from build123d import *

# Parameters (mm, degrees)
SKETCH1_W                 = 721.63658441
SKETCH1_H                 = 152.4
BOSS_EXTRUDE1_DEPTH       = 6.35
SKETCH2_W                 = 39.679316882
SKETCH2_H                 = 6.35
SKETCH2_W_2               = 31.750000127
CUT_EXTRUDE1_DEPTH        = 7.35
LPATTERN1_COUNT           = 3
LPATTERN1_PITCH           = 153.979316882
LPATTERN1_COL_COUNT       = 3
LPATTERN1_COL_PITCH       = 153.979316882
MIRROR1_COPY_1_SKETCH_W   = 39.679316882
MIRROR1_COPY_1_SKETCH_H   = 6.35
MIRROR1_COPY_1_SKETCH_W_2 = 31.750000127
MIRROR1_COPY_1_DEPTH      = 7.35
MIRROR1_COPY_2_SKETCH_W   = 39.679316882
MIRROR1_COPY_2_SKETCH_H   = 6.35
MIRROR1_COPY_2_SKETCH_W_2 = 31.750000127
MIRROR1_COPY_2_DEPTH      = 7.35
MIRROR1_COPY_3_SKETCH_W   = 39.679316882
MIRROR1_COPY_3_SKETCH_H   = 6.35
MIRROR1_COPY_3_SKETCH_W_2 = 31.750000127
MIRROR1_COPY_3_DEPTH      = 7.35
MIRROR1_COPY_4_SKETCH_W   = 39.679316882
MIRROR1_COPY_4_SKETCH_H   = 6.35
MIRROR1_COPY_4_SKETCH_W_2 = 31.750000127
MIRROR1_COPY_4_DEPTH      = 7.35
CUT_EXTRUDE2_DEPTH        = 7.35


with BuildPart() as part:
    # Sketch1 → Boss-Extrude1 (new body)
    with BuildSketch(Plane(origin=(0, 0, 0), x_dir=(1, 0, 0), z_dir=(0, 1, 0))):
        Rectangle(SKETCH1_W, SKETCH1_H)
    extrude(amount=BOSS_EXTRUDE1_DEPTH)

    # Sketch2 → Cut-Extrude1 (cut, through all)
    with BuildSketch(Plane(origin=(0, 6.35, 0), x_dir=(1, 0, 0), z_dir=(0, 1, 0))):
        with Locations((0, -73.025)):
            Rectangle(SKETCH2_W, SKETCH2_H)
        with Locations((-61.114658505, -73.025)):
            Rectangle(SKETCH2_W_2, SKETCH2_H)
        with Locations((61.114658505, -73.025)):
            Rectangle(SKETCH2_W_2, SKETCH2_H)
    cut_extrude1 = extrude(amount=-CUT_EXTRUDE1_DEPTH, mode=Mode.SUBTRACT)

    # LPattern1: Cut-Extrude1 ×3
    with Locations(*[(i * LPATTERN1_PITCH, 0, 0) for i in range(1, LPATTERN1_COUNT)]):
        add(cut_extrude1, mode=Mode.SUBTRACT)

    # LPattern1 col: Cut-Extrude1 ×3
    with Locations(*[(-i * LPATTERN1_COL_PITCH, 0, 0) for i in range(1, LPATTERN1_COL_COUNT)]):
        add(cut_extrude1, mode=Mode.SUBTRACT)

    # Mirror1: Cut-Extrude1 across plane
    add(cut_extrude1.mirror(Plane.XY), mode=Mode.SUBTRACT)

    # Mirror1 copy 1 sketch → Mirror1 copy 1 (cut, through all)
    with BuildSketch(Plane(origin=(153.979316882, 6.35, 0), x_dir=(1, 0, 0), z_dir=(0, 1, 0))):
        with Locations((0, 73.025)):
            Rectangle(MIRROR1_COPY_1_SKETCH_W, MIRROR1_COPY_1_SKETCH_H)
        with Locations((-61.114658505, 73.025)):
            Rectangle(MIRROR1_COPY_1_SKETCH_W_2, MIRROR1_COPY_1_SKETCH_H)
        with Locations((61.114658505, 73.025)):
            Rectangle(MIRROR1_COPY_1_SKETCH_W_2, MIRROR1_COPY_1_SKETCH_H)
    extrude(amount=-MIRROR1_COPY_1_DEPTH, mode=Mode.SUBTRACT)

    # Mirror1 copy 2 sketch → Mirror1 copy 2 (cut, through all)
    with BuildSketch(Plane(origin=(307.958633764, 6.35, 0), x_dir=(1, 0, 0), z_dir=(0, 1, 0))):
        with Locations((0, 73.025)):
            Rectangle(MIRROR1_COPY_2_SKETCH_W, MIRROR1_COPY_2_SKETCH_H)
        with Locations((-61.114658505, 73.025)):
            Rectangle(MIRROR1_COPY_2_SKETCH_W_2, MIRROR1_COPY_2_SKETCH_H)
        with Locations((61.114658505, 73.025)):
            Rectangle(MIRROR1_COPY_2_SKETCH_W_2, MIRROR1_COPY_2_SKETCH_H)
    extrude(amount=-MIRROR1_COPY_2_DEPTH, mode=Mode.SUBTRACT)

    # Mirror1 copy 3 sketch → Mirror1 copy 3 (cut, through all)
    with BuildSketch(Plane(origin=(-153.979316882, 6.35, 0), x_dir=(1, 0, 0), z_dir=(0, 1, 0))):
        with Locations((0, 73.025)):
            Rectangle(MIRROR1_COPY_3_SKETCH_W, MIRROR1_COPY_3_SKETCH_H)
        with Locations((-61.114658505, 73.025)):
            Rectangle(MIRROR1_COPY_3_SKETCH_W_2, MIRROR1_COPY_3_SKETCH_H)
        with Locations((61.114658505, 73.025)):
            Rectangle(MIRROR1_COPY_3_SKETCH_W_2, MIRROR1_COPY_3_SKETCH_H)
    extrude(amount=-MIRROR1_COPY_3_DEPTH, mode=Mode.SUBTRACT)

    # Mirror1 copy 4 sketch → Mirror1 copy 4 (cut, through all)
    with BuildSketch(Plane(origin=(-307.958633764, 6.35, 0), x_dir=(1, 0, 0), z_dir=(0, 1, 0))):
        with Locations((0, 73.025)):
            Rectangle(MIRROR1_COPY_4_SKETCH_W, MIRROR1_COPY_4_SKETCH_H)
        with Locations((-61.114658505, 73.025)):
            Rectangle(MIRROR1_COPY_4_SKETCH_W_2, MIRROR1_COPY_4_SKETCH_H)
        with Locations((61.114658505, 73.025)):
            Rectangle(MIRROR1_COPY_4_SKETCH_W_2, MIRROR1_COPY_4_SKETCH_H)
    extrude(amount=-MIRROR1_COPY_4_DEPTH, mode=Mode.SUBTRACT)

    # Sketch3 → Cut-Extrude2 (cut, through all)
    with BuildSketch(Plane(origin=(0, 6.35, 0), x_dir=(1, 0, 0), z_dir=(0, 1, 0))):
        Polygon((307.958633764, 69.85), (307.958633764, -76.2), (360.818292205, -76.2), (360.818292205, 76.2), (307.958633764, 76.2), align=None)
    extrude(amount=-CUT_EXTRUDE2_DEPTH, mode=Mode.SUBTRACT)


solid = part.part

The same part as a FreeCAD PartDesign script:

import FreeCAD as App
import Part
import Sketcher

V = App.Vector
Q = App.Units.Quantity

doc = App.newDocument("Part")
params = doc.addObject("Spreadsheet::Sheet", "Params")
for row, (alias, value) in enumerate([
    ("sketch1_height", "6 in"),
    ("pad1_length", "0.25 in"),
    ("sketch2_width", "1.25 in"),
    ("sketch2_height", "0.25 in"),
    ("linearpattern_pitch", "153.979317 mm"),
    ("linearpattern2_pitch", "153.979317 mm"),
    ("sketch3_width", "1.25 in"),
    ("sketch3_height", "0.25 in"),
    ("sketch4_width", "1.25 in"),
    ("sketch4_height", "0.25 in"),
    ("sketch5_width", "1.25 in"),
    ("sketch5_height", "0.25 in"),
    ("sketch6_width", "1.25 in"),
    ("sketch6_height", "0.25 in"),
    ("sketch7_height", "6 in"),
], start=1):
    params.set(f"A{row}", alias)
    params.set(f"B{row}", "=" + value)
    params.setAlias(f"B{row}", alias)

body = doc.addObject("PartDesign::Body", "Body")

# Sketch on XZ plane
sketch1 = body.newObject("Sketcher::SketchObject", "Sketch")
sketch1.AttachmentSupport = (doc.getObject("XZ_Plane"), [""])
sketch1.MapMode = "FlatFace"
sketch1.addGeometry([
    Part.LineSegment(V(-360.818292, -76.2, 0), V(-360.818292, 76.2, 0)),
    Part.LineSegment(V(-360.818292, 76.2, 0), V(360.818292, 76.2, 0)),
    Part.LineSegment(V(360.818292, 76.2, 0), V(360.818292, -76.2, 0)),
    Part.LineSegment(V(360.818292, -76.2, 0), V(-360.818292, -76.2, 0)),
], False)
sketch1.addConstraint([
    Sketcher.Constraint("Coincident", 0, 2, 1, 1),
    Sketcher.Constraint("Coincident", 1, 2, 2, 1),
    Sketcher.Constraint("Coincident", 2, 2, 3, 1),
    Sketcher.Constraint("Coincident", 3, 2, 0, 1),
    Sketcher.Constraint("Vertical", 0),
    Sketcher.Constraint("Horizontal", 1),
    Sketcher.Constraint("Vertical", 2),
    Sketcher.Constraint("Horizontal", 3),
    Sketcher.Constraint("Symmetric", 0, 2, 2, 2, -1, 1),
    Sketcher.Constraint("DistanceY", 0, 1, 0, 2, Q("6 in")),
    Sketcher.Constraint("DistanceX", 1, 1, 1, 2, Q("721.636584 mm")),
])
sketch1.setExpression("Constraints[9]", "Params.sketch1_height")
pad1 = body.newObject("PartDesign::Pad", "Pad")
pad1.Profile = sketch1
pad1.setExpression("Length", "Params.pad1_length")
pad1.Reversed = True

# Sketch on XZ plane
sketch2 = body.newObject("Sketcher::SketchObject", "Sketch001")
sketch2.AttachmentSupport = (doc.getObject("XZ_Plane"), [""])
sketch2.MapMode = "FlatFace"
sketch2.AttachmentOffset = App.Placement(V(0, 0, -0.25 * 25.4), App.Rotation())
sketch2.addGeometry([
    Part.LineSegment(V(-19.839658, 69.85, 0), V(-19.839658, 76.2, 0)),  # 0
    Part.LineSegment(V(-19.839658, 76.2, 0), V(19.839658, 76.2, 0)),  # 1
    Part.LineSegment(V(19.839658, 76.2, 0), V(19.839658, 69.85, 0)),  # 2
    Part.LineSegment(V(19.839658, 69.85, 0), V(-19.839658, 69.85, 0)),  # 3
    Part.LineSegment(V(-76.989659, 69.85, 0), V(-76.989659, 76.2, 0)),  # 4
    Part.LineSegment(V(-76.989659, 76.2, 0), V(-45.239658, 76.2, 0)),  # 5
    Part.LineSegment(V(-45.239658, 76.2, 0), V(-45.239658, 69.85, 0)),  # 6
    Part.LineSegment(V(-45.239658, 69.85, 0), V(-76.989659, 69.85, 0)),  # 7
    Part.LineSegment(V(45.239658, 69.85, 0), V(45.239658, 76.2, 0)),  # 8
    Part.LineSegment(V(45.239658, 76.2, 0), V(76.989659, 76.2, 0)),  # 9
    Part.LineSegment(V(76.989659, 76.2, 0), V(76.989659, 69.85, 0)),  # 10
    Part.LineSegment(V(76.989659, 69.85, 0), V(45.239658, 69.85, 0)),  # 11
], False)
sketch2.addConstraint([
    Sketcher.Constraint("Coincident", 0, 2, 1, 1),
    Sketcher.Constraint("Coincident", 1, 2, 2, 1),
    Sketcher.Constraint("Coincident", 2, 2, 3, 1),
    Sketcher.Constraint("Coincident", 3, 2, 0, 1),
    Sketcher.Constraint("Coincident", 4, 2, 5, 1),
    Sketcher.Constraint("Coincident", 5, 2, 6, 1),
    Sketcher.Constraint("Coincident", 6, 2, 7, 1),
    Sketcher.Constraint("Coincident", 7, 2, 4, 1),
    Sketcher.Constraint("Coincident", 8, 2, 9, 1),
    Sketcher.Constraint("Coincident", 9, 2, 10, 1),
    Sketcher.Constraint("Coincident", 10, 2, 11, 1),
    Sketcher.Constraint("Coincident", 11, 2, 8, 1),
    Sketcher.Constraint("Vertical", 0),
    Sketcher.Constraint("Horizontal", 1),
    Sketcher.Constraint("Vertical", 2),
    Sketcher.Constraint("Horizontal", 3),
    Sketcher.Constraint("Vertical", 4),
    Sketcher.Constraint("Horizontal", 5),
    Sketcher.Constraint("Vertical", 6),
    Sketcher.Constraint("Horizontal", 7),
    Sketcher.Constraint("Vertical", 8),
    Sketcher.Constraint("Horizontal", 9),
    Sketcher.Constraint("Vertical", 10),
    Sketcher.Constraint("Horizontal", 11),
    Sketcher.Constraint("Symmetric", 5, 2, 8, 2, -2),
    Sketcher.Constraint("Symmetric", 7, 2, 10, 2, -2),
    Sketcher.Constraint("Horizontal", 1, 2, 4, 2),
    Sketcher.Constraint("Horizontal", 3, 2, 6, 2),
    Sketcher.Constraint("DistanceY", -1, 1, 0, 2, Q("3 in")),
    Sketcher.Constraint("DistanceX", 5, 2, 0, 2, Q("1 in")),
    Sketcher.Constraint("DistanceX", 1, 2, 8, 2, Q("1 in")),
    Sketcher.Constraint("DistanceX", 5, 1, 5, 2, Q("1.25 in")),
    Sketcher.Constraint("DistanceY", 0, 1, 0, 2, Q("0.25 in")),
    Sketcher.Constraint("DistanceX", 1, 1, 1, 2, Q("39.679317 mm")),
])
sketch2.setExpression("Constraints[31]", "Params.sketch2_width")
sketch2.setExpression("Constraints[32]", "Params.sketch2_height")
pocket1 = body.newObject("PartDesign::Pocket", "Pocket")
pocket1.Profile = sketch2
pocket1.Type = "ThroughAll"
pocket1.Reversed = True
doc.recompute()

linearpattern = body.newObject("PartDesign::LinearPattern", "LinearPattern")
linearpattern.Originals = [pocket1]
linearpattern.Direction = (doc.getObject("X_Axis"), [""])
linearpattern.Mode = "offset"
linearpattern.setExpression("Offset", "Params.linearpattern_pitch")
linearpattern.Occurrences = 3
body.Tip = linearpattern
doc.recompute()

linearpattern2 = body.newObject("PartDesign::LinearPattern", "LinearPattern001")
linearpattern2.Originals = [pocket1]
linearpattern2.Direction = (doc.getObject("X_Axis"), [""])
linearpattern2.Mode = "offset"
linearpattern2.setExpression("Offset", "Params.linearpattern2_pitch")
linearpattern2.Occurrences = 3
linearpattern2.Reversed = True
body.Tip = linearpattern2
doc.recompute()

mirrored = body.newObject("PartDesign::Mirrored", "Mirrored")
mirrored.Originals = [pocket1]
mirrored.MirrorPlane = (doc.getObject("XY_Plane"), [""])
body.Tip = mirrored

# Sketch on XZ plane
sketch3 = body.newObject("Sketcher::SketchObject", "Sketch002")
sketch3.AttachmentSupport = (doc.getObject("XZ_Plane"), [""])
sketch3.MapMode = "FlatFace"
sketch3.AttachmentOffset = App.Placement(V(0, 0, -0.25 * 25.4), App.Rotation())
sketch3.addGeometry([
    Part.LineSegment(V(134.139658, -76.2, 0), V(134.139658, -69.85, 0)),  # 0
    Part.LineSegment(V(134.139658, -69.85, 0), V(173.818975, -69.85, 0)),  # 1
    Part.LineSegment(V(173.818975, -69.85, 0), V(173.818975, -76.2, 0)),  # 2
    Part.LineSegment(V(173.818975, -76.2, 0), V(134.139658, -76.2, 0)),  # 3
    Part.LineSegment(V(76.989658, -76.2, 0), V(76.989658, -69.85, 0)),  # 4
    Part.LineSegment(V(76.989658, -69.85, 0), V(108.739658, -69.85, 0)),  # 5
    Part.LineSegment(V(108.739658, -69.85, 0), V(108.739658, -76.2, 0)),  # 6
    Part.LineSegment(V(108.739658, -76.2, 0), V(76.989658, -76.2, 0)),  # 7
    Part.LineSegment(V(199.218975, -76.2, 0), V(199.218975, -69.85, 0)),  # 8
    Part.LineSegment(V(199.218975, -69.85, 0), V(230.968975, -69.85, 0)),  # 9
    Part.LineSegment(V(230.968975, -69.85, 0), V(230.968975, -76.2, 0)),  # 10
    Part.LineSegment(V(230.968975, -76.2, 0), V(199.218975, -76.2, 0)),  # 11
], False)
sketch3.addConstraint([
    Sketcher.Constraint("Coincident", 0, 2, 1, 1),
    Sketcher.Constraint("Coincident", 1, 2, 2, 1),
    Sketcher.Constraint("Coincident", 2, 2, 3, 1),
    Sketcher.Constraint("Coincident", 3, 2, 0, 1),
    Sketcher.Constraint("Coincident", 4, 2, 5, 1),
    Sketcher.Constraint("Coincident", 5, 2, 6, 1),
    Sketcher.Constraint("Coincident", 6, 2, 7, 1),
    Sketcher.Constraint("Coincident", 7, 2, 4, 1),
    Sketcher.Constraint("Coincident", 8, 2, 9, 1),
    Sketcher.Constraint("Coincident", 9, 2, 10, 1),
    Sketcher.Constraint("Coincident", 10, 2, 11, 1),
    Sketcher.Constraint("Coincident", 11, 2, 8, 1),
    Sketcher.Constraint("Vertical", 0),
    Sketcher.Constraint("Horizontal", 1),
    Sketcher.Constraint("Vertical", 2),
    Sketcher.Constraint("Horizontal", 3),
    Sketcher.Constraint("Vertical", 4),
    Sketcher.Constraint("Horizontal", 5),
    Sketcher.Constraint("Vertical", 6),
    Sketcher.Constraint("Horizontal", 7),
    Sketcher.Constraint("Vertical", 8),
    Sketcher.Constraint("Horizontal", 9),
    Sketcher.Constraint("Vertical", 10),
    Sketcher.Constraint("Horizontal", 11),
    Sketcher.Constraint("Horizontal", 1, 2, 4, 2),
    Sketcher.Constraint("Horizontal", 3, 2, 6, 2),
    Sketcher.Constraint("Horizontal", 5, 2, 8, 2),
    Sketcher.Constraint("Horizontal", 7, 2, 10, 2),
    Sketcher.Constraint("Equal", 7, 9),
    Sketcher.Constraint("DistanceY", 2, 2, -1, 1, Q("3 in")),
    Sketcher.Constraint("DistanceX", 5, 2, 0, 2, Q("1 in")),
    Sketcher.Constraint("DistanceX", 1, 2, 8, 2, Q("1 in")),
    Sketcher.Constraint("DistanceX", 5, 1, 5, 2, Q("1.25 in")),
    Sketcher.Constraint("DistanceY", 0, 1, 0, 2, Q("0.25 in")),
    Sketcher.Constraint("DistanceX", 1, 1, 1, 2, Q("39.679317 mm")),
    Sketcher.Constraint("DistanceX", -1, 1, 0, 2, Q("134.139658 mm")),
])
sketch3.setExpression("Constraints[32]", "Params.sketch3_width")
sketch3.setExpression("Constraints[33]", "Params.sketch3_height")
pocket2 = body.newObject("PartDesign::Pocket", "Pocket001")
pocket2.Profile = sketch3
pocket2.Type = "ThroughAll"
pocket2.Reversed = True

# Sketch on XZ plane
sketch4 = body.newObject("Sketcher::SketchObject", "Sketch003")
sketch4.AttachmentSupport = (doc.getObject("XZ_Plane"), [""])
sketch4.MapMode = "FlatFace"
sketch4.AttachmentOffset = App.Placement(V(0, 0, -0.25 * 25.4), App.Rotation())
sketch4.addGeometry([
    Part.LineSegment(V(288.118975, -76.2, 0), V(288.118975, -69.85, 0)),  # 0
    Part.LineSegment(V(288.118975, -69.85, 0), V(327.798292, -69.85, 0)),  # 1
    Part.LineSegment(V(327.798292, -69.85, 0), V(327.798292, -76.2, 0)),  # 2
    Part.LineSegment(V(327.798292, -76.2, 0), V(288.118975, -76.2, 0)),  # 3
    Part.LineSegment(V(230.968975, -76.2, 0), V(230.968975, -69.85, 0)),  # 4
    Part.LineSegment(V(230.968975, -69.85, 0), V(262.718975, -69.85, 0)),  # 5
    Part.LineSegment(V(262.718975, -69.85, 0), V(262.718975, -76.2, 0)),  # 6
    Part.LineSegment(V(262.718975, -76.2, 0), V(230.968975, -76.2, 0)),  # 7
    Part.LineSegment(V(353.198292, -76.2, 0), V(353.198292, -69.85, 0)),  # 8
    Part.LineSegment(V(353.198292, -69.85, 0), V(384.948292, -69.85, 0)),  # 9
    Part.LineSegment(V(384.948292, -69.85, 0), V(384.948292, -76.2, 0)),  # 10
    Part.LineSegment(V(384.948292, -76.2, 0), V(353.198292, -76.2, 0)),  # 11
], False)
sketch4.addConstraint([
    Sketcher.Constraint("Coincident", 0, 2, 1, 1),
    Sketcher.Constraint("Coincident", 1, 2, 2, 1),
    Sketcher.Constraint("Coincident", 2, 2, 3, 1),
    Sketcher.Constraint("Coincident", 3, 2, 0, 1),
    Sketcher.Constraint("Coincident", 4, 2, 5, 1),
    Sketcher.Constraint("Coincident", 5, 2, 6, 1),
    Sketcher.Constraint("Coincident", 6, 2, 7, 1),
    Sketcher.Constraint("Coincident", 7, 2, 4, 1),
    Sketcher.Constraint("Coincident", 8, 2, 9, 1),
    Sketcher.Constraint("Coincident", 9, 2, 10, 1),
    Sketcher.Constraint("Coincident", 10, 2, 11, 1),
    Sketcher.Constraint("Coincident", 11, 2, 8, 1),
    Sketcher.Constraint("Vertical", 0),
    Sketcher.Constraint("Horizontal", 1),
    Sketcher.Constraint("Vertical", 2),
    Sketcher.Constraint("Horizontal", 3),
    Sketcher.Constraint("Vertical", 4),
    Sketcher.Constraint("Horizontal", 5),
    Sketcher.Constraint("Vertical", 6),
    Sketcher.Constraint("Horizontal", 7),
    Sketcher.Constraint("Vertical", 8),
    Sketcher.Constraint("Horizontal", 9),
    Sketcher.Constraint("Vertical", 10),
    Sketcher.Constraint("Horizontal", 11),
    Sketcher.Constraint("Horizontal", 1, 2, 4, 2),
    Sketcher.Constraint("Horizontal", 3, 2, 6, 2),
    Sketcher.Constraint("Horizontal", 5, 2, 8, 2),
    Sketcher.Constraint("Horizontal", 7, 2, 10, 2),
    Sketcher.Constraint("Equal", 7, 9),
    Sketcher.Constraint("DistanceY", 2, 2, -1, 1, Q("3 in")),
    Sketcher.Constraint("DistanceX", 5, 2, 0, 2, Q("1 in")),
    Sketcher.Constraint("DistanceX", 1, 2, 8, 2, Q("1 in")),
    Sketcher.Constraint("DistanceX", 5, 1, 5, 2, Q("1.25 in")),
    Sketcher.Constraint("DistanceY", 0, 1, 0, 2, Q("0.25 in")),
    Sketcher.Constraint("DistanceX", 1, 1, 1, 2, Q("39.679317 mm")),
    Sketcher.Constraint("DistanceX", -1, 1, 0, 2, Q("288.118975 mm")),
])
sketch4.setExpression("Constraints[32]", "Params.sketch4_width")
sketch4.setExpression("Constraints[33]", "Params.sketch4_height")
pocket3 = body.newObject("PartDesign::Pocket", "Pocket002")
pocket3.Profile = sketch4
pocket3.Type = "ThroughAll"
pocket3.Reversed = True

# Sketch on XZ plane
sketch5 = body.newObject("Sketcher::SketchObject", "Sketch004")
sketch5.AttachmentSupport = (doc.getObject("XZ_Plane"), [""])
sketch5.MapMode = "FlatFace"
sketch5.AttachmentOffset = App.Placement(V(0, 0, -0.25 * 25.4), App.Rotation())
sketch5.addGeometry([
    Part.LineSegment(V(-173.818975, -76.2, 0), V(-173.818975, -69.85, 0)),  # 0
    Part.LineSegment(V(-173.818975, -69.85, 0), V(-134.139658, -69.85, 0)),  # 1
    Part.LineSegment(V(-134.139658, -69.85, 0), V(-134.139658, -76.2, 0)),  # 2
    Part.LineSegment(V(-134.139658, -76.2, 0), V(-173.818975, -76.2, 0)),  # 3
    Part.LineSegment(V(-230.968975, -76.2, 0), V(-230.968975, -69.85, 0)),  # 4
    Part.LineSegment(V(-230.968975, -69.85, 0), V(-199.218975, -69.85, 0)),  # 5
    Part.LineSegment(V(-199.218975, -69.85, 0), V(-199.218975, -76.2, 0)),  # 6
    Part.LineSegment(V(-199.218975, -76.2, 0), V(-230.968975, -76.2, 0)),  # 7
    Part.LineSegment(V(-108.739658, -76.2, 0), V(-108.739658, -69.85, 0)),  # 8
    Part.LineSegment(V(-108.739658, -69.85, 0), V(-76.989658, -69.85, 0)),  # 9
    Part.LineSegment(V(-76.989658, -69.85, 0), V(-76.989658, -76.2, 0)),  # 10
    Part.LineSegment(V(-76.989658, -76.2, 0), V(-108.739658, -76.2, 0)),  # 11
], False)
sketch5.addConstraint([
    Sketcher.Constraint("Coincident", 0, 2, 1, 1),
    Sketcher.Constraint("Coincident", 1, 2, 2, 1),
    Sketcher.Constraint("Coincident", 2, 2, 3, 1),
    Sketcher.Constraint("Coincident", 3, 2, 0, 1),
    Sketcher.Constraint("Coincident", 4, 2, 5, 1),
    Sketcher.Constraint("Coincident", 5, 2, 6, 1),
    Sketcher.Constraint("Coincident", 6, 2, 7, 1),
    Sketcher.Constraint("Coincident", 7, 2, 4, 1),
    Sketcher.Constraint("Coincident", 8, 2, 9, 1),
    Sketcher.Constraint("Coincident", 9, 2, 10, 1),
    Sketcher.Constraint("Coincident", 10, 2, 11, 1),
    Sketcher.Constraint("Coincident", 11, 2, 8, 1),
    Sketcher.Constraint("Vertical", 0),
    Sketcher.Constraint("Horizontal", 1),
    Sketcher.Constraint("Vertical", 2),
    Sketcher.Constraint("Horizontal", 3),
    Sketcher.Constraint("Vertical", 4),
    Sketcher.Constraint("Horizontal", 5),
    Sketcher.Constraint("Vertical", 6),
    Sketcher.Constraint("Horizontal", 7),
    Sketcher.Constraint("Vertical", 8),
    Sketcher.Constraint("Horizontal", 9),
    Sketcher.Constraint("Vertical", 10),
    Sketcher.Constraint("Horizontal", 11),
    Sketcher.Constraint("Horizontal", 1, 2, 4, 2),
    Sketcher.Constraint("Horizontal", 3, 2, 6, 2),
    Sketcher.Constraint("Horizontal", 5, 2, 8, 2),
    Sketcher.Constraint("Horizontal", 7, 2, 10, 2),
    Sketcher.Constraint("Equal", 7, 9),
    Sketcher.Constraint("DistanceY", 2, 2, -1, 1, Q("3 in")),
    Sketcher.Constraint("DistanceX", 5, 2, 0, 2, Q("1 in")),
    Sketcher.Constraint("DistanceX", 1, 2, 8, 2, Q("1 in")),
    Sketcher.Constraint("DistanceX", 5, 1, 5, 2, Q("1.25 in")),
    Sketcher.Constraint("DistanceY", 0, 1, 0, 2, Q("0.25 in")),
    Sketcher.Constraint("DistanceX", 1, 1, 1, 2, Q("39.679317 mm")),
    Sketcher.Constraint("DistanceX", 1, 2, -1, 1, Q("134.139658 mm")),
])
sketch5.setExpression("Constraints[32]", "Params.sketch5_width")
sketch5.setExpression("Constraints[33]", "Params.sketch5_height")
pocket4 = body.newObject("PartDesign::Pocket", "Pocket003")
pocket4.Profile = sketch5
pocket4.Type = "ThroughAll"
pocket4.Reversed = True

# Sketch on XZ plane
sketch6 = body.newObject("Sketcher::SketchObject", "Sketch005")
sketch6.AttachmentSupport = (doc.getObject("XZ_Plane"), [""])
sketch6.MapMode = "FlatFace"
sketch6.AttachmentOffset = App.Placement(V(0, 0, -0.25 * 25.4), App.Rotation())
sketch6.addGeometry([
    Part.LineSegment(V(-327.798292, -76.2, 0), V(-327.798292, -69.85, 0)),  # 0
    Part.LineSegment(V(-327.798292, -69.85, 0), V(-288.118975, -69.85, 0)),  # 1
    Part.LineSegment(V(-288.118975, -69.85, 0), V(-288.118975, -76.2, 0)),  # 2
    Part.LineSegment(V(-288.118975, -76.2, 0), V(-327.798292, -76.2, 0)),  # 3
    Part.LineSegment(V(-384.948292, -76.2, 0), V(-384.948292, -69.85, 0)),  # 4
    Part.LineSegment(V(-384.948292, -69.85, 0), V(-353.198292, -69.85, 0)),  # 5
    Part.LineSegment(V(-353.198292, -69.85, 0), V(-353.198292, -76.2, 0)),  # 6
    Part.LineSegment(V(-353.198292, -76.2, 0), V(-384.948292, -76.2, 0)),  # 7
    Part.LineSegment(V(-262.718975, -76.2, 0), V(-262.718975, -69.85, 0)),  # 8
    Part.LineSegment(V(-262.718975, -69.85, 0), V(-230.968975, -69.85, 0)),  # 9
    Part.LineSegment(V(-230.968975, -69.85, 0), V(-230.968975, -76.2, 0)),  # 10
    Part.LineSegment(V(-230.968975, -76.2, 0), V(-262.718975, -76.2, 0)),  # 11
], False)
sketch6.addConstraint([
    Sketcher.Constraint("Coincident", 0, 2, 1, 1),
    Sketcher.Constraint("Coincident", 1, 2, 2, 1),
    Sketcher.Constraint("Coincident", 2, 2, 3, 1),
    Sketcher.Constraint("Coincident", 3, 2, 0, 1),
    Sketcher.Constraint("Coincident", 4, 2, 5, 1),
    Sketcher.Constraint("Coincident", 5, 2, 6, 1),
    Sketcher.Constraint("Coincident", 6, 2, 7, 1),
    Sketcher.Constraint("Coincident", 7, 2, 4, 1),
    Sketcher.Constraint("Coincident", 8, 2, 9, 1),
    Sketcher.Constraint("Coincident", 9, 2, 10, 1),
    Sketcher.Constraint("Coincident", 10, 2, 11, 1),
    Sketcher.Constraint("Coincident", 11, 2, 8, 1),
    Sketcher.Constraint("Vertical", 0),
    Sketcher.Constraint("Horizontal", 1),
    Sketcher.Constraint("Vertical", 2),
    Sketcher.Constraint("Horizontal", 3),
    Sketcher.Constraint("Vertical", 4),
    Sketcher.Constraint("Horizontal", 5),
    Sketcher.Constraint("Vertical", 6),
    Sketcher.Constraint("Horizontal", 7),
    Sketcher.Constraint("Vertical", 8),
    Sketcher.Constraint("Horizontal", 9),
    Sketcher.Constraint("Vertical", 10),
    Sketcher.Constraint("Horizontal", 11),
    Sketcher.Constraint("Horizontal", 1, 2, 4, 2),
    Sketcher.Constraint("Horizontal", 3, 2, 6, 2),
    Sketcher.Constraint("Horizontal", 5, 2, 8, 2),
    Sketcher.Constraint("Horizontal", 7, 2, 10, 2),
    Sketcher.Constraint("Equal", 7, 9),
    Sketcher.Constraint("DistanceY", 2, 2, -1, 1, Q("3 in")),
    Sketcher.Constraint("DistanceX", 5, 2, 0, 2, Q("1 in")),
    Sketcher.Constraint("DistanceX", 1, 2, 8, 2, Q("1 in")),
    Sketcher.Constraint("DistanceX", 5, 1, 5, 2, Q("1.25 in")),
    Sketcher.Constraint("DistanceY", 0, 1, 0, 2, Q("0.25 in")),
    Sketcher.Constraint("DistanceX", 1, 1, 1, 2, Q("39.679317 mm")),
    Sketcher.Constraint("DistanceX", 0, 2, -1, 1, Q("327.798292 mm")),
])
sketch6.setExpression("Constraints[32]", "Params.sketch6_width")
sketch6.setExpression("Constraints[33]", "Params.sketch6_height")
pocket5 = body.newObject("PartDesign::Pocket", "Pocket004")
pocket5.Profile = sketch6
pocket5.Type = "ThroughAll"
pocket5.Reversed = True

# Sketch on XZ plane
sketch7 = body.newObject("Sketcher::SketchObject", "Sketch006")
sketch7.AttachmentSupport = (doc.getObject("XZ_Plane"), [""])
sketch7.MapMode = "FlatFace"
sketch7.AttachmentOffset = App.Placement(V(0, 0, -0.25 * 25.4), App.Rotation())
sketch7.addGeometry([
    Part.LineSegment(V(307.958634, 76.2, 0), V(360.818292, 76.2, 0)),
    Part.LineSegment(V(360.818292, 76.2, 0), V(360.818292, -76.2, 0)),
    Part.LineSegment(V(360.818292, -76.2, 0), V(307.958634, -76.2, 0)),
    Part.LineSegment(V(307.958634, -76.2, 0), V(307.958634, 76.2, 0)),
], False)
sketch7.addConstraint([
    Sketcher.Constraint("Coincident", 0, 2, 1, 1),
    Sketcher.Constraint("Coincident", 1, 2, 2, 1),
    Sketcher.Constraint("Coincident", 2, 2, 3, 1),
    Sketcher.Constraint("Coincident", 3, 2, 0, 1),
    Sketcher.Constraint("Horizontal", 0),
    Sketcher.Constraint("Vertical", 1),
    Sketcher.Constraint("Horizontal", 2),
    Sketcher.Constraint("Vertical", 3),
    Sketcher.Constraint("DistanceY", 1, 2, 1, 1, Q("6 in")),
    Sketcher.Constraint("DistanceY", -1, 1, 0, 2, Q("3 in")),
    Sketcher.Constraint("DistanceX", 0, 1, 0, 2, Q("52.859658 mm")),
    Sketcher.Constraint("DistanceX", -1, 1, 0, 2, Q("360.818292 mm")),
])
sketch7.setExpression("Constraints[8]", "Params.sketch7_height")
pocket6 = body.newObject("PartDesign::Pocket", "Pocket005")
pocket6.Profile = sketch7
pocket6.Type = "ThroughAll"
pocket6.Reversed = True

doc.recompute()
